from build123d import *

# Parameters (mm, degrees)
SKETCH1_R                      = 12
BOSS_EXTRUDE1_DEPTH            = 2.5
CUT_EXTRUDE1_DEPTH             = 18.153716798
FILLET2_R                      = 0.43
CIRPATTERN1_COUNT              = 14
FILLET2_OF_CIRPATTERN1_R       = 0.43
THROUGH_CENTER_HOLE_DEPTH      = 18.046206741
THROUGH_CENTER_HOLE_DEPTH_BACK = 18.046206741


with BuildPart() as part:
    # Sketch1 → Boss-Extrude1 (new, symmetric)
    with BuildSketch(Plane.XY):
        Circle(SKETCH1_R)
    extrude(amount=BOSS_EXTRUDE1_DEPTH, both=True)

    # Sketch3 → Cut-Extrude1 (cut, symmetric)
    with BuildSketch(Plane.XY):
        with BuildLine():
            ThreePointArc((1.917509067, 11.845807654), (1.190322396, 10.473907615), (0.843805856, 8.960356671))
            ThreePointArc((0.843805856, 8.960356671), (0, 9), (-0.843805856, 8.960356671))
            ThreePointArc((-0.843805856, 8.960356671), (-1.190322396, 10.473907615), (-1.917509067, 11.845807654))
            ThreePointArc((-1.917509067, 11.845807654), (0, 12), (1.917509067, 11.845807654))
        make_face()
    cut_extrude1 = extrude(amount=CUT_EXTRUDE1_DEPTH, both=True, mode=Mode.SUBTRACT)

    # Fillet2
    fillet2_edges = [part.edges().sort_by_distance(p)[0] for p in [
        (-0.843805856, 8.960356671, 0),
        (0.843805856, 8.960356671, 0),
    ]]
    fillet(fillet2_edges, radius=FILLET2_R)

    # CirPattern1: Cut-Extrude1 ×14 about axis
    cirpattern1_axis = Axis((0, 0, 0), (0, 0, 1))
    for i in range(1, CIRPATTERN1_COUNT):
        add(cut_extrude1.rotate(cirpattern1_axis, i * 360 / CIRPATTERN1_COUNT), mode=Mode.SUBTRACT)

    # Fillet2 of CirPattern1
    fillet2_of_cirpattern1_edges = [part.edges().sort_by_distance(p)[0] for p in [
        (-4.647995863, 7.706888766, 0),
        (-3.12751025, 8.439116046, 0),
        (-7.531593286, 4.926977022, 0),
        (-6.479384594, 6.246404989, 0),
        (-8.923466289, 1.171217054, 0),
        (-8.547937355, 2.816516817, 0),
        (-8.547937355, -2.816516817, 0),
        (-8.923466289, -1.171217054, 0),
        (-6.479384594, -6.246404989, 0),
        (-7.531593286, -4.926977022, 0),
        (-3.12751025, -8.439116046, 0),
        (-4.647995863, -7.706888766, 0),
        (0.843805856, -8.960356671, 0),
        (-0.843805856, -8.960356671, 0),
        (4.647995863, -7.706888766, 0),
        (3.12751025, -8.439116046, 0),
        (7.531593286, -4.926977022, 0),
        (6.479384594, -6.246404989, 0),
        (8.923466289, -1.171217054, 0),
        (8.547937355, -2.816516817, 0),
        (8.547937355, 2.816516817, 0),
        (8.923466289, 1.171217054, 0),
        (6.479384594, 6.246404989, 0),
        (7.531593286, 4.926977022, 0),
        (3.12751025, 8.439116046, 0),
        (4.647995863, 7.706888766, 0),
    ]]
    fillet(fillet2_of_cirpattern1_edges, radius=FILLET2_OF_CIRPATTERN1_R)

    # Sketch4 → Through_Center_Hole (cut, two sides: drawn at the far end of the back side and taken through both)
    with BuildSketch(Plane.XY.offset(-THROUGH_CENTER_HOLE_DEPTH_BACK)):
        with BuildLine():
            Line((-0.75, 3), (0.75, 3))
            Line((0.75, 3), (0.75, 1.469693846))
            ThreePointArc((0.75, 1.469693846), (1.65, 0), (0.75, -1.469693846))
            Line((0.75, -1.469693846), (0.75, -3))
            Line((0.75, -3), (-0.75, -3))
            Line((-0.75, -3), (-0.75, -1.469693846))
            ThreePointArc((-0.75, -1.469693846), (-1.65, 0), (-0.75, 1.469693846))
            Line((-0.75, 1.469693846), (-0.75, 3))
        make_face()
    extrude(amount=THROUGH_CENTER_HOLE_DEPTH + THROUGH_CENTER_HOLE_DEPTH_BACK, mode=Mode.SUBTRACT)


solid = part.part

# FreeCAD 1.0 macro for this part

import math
import FreeCAD as App
import Part
import Sketcher
from FreeCAD import Vector


def edges_at(feature, points):
    """Names of the edges that pass closest to the given points."""
    edges = feature.Shape.Edges
    near = lambda p: min(range(len(edges)), key=lambda i: edges[i].distToShape(Part.Vertex(*p))[0])
    return sorted({f"Edge{near(p) + 1}" for p in points})

doc = App.newDocument("Part")
body = doc.addObject("PartDesign::Body", "Body")

sketch1 = doc.addObject("Sketcher::SketchObject", "Sketch")
body.addObject(sketch1)
sketch1.AttachmentSupport = (doc.XY_Plane, [""])
sketch1.MapMode = "FlatFace"
sketch1.addGeometry(Part.Circle(Vector(0, 0, 0), Vector(0, 0, 1), 12), False)
sketch1.addConstraint([
    Sketcher.Constraint("Coincident", 0, 3, -1, 1),
    Sketcher.Constraint("Diameter", 0, 24.0),
])
pad1 = doc.addObject("PartDesign::Pad", "Pad")
body.addObject(pad1)
pad1.Profile = sketch1
pad1.Length = 5
pad1.Midplane = True

sketch2 = doc.addObject("Sketcher::SketchObject", "Sketch001")
body.addObject(sketch2)
sketch2.AttachmentSupport = (doc.XY_Plane, [""])
sketch2.MapMode = "FlatFace"
sketch2.addGeometry([
    Part.ArcOfCircle(Part.Circle(Vector(6.753365, 8.403847, 0), Vector(0, 0, 1), 5.935705), math.radians(144.55833), math.radians(174.620264)),
    Part.ArcOfCircle(Part.Circle(Vector(0, 0, 0), Vector(0, 0, 1), 12), math.radians(80.805152), math.radians(99.194848)),
    Part.ArcOfCircle(Part.Circle(Vector(-6.753365, 8.403847, 0), Vector(0, 0, 1), 5.935705), math.radians(5.379736), math.radians(35.44167)),
    Part.ArcOfCircle(Part.Circle(Vector(0, 0, 0), Vector(0, 0, 1), 9), math.radians(84.620264), math.radians(95.379736)),
], False)
sketch2.addConstraint([
    Sketcher.Constraint("Coincident", 0, 1, 1, 1),
    Sketcher.Constraint("Coincident", 1, 2, 2, 2),
    Sketcher.Constraint("Coincident", 2, 1, 3, 2),
    Sketcher.Constraint("Coincident", 3, 1, 0, 2),
    Sketcher.Constraint("Coincident", 1, 3, -1, 1),
    Sketcher.Constraint("Coincident", 3, 3, -1, 1),
    Sketcher.Constraint("Equal", 0, 2),
    Sketcher.Constraint("Symmetric", 0, 3, 2, 3, -2),
    Sketcher.Constraint("Radius", 1, 12.0),
    Sketcher.Constraint("Radius", 3, 9.0),
    Sketcher.Constraint("Radius", 0, 5.935705),
    Sketcher.Constraint("DistanceX", -1, 1, 0, 1, 1.917509),
    Sketcher.Constraint("DistanceX", 2, 3, 0, 3, 13.506731),
])
pocket1 = doc.addObject("PartDesign::Pocket", "Pocket")
body.addObject(pocket1)
pocket1.Profile = sketch2
pocket1.Length = 36.307434
pocket1.Midplane = True
doc.recompute()

fillet = doc.addObject("PartDesign::Fillet", "Fillet")
body.addObject(fillet)
fillet.Base = (pocket1, edges_at(pocket1, [(-0.844, 8.96, 0), (0.844, 8.96, 0)]))
fillet.Radius = 0.43
doc.recompute()

polarpattern = doc.addObject("PartDesign::PolarPattern", "PolarPattern")
body.addObject(polarpattern)
polarpattern.Originals = [pocket1]
polarpattern.Axis = (doc.Z_Axis, [""])
polarpattern.Angle = 360
polarpattern.Occurrences = 14
body.Tip = polarpattern
doc.recompute()

fillet2 = doc.addObject("PartDesign::Fillet", "Fillet001")
body.addObject(fillet2)
fillet2.Base = (polarpattern, edges_at(polarpattern, [
    (-4.648, 7.707, 0),
    (-3.128, 8.439, 0),
    (-7.532, 4.927, 0),
    (-6.479, 6.246, 0),
    (-8.923, 1.171, 0),
    (-8.548, 2.817, 0),
    (-8.548, -2.817, 0),
    (-8.923, -1.171, 0),
    (-6.479, -6.246, 0),
    (-7.532, -4.927, 0),
    (-3.128, -8.439, 0),
    (-4.648, -7.707, 0),
    (0.844, -8.96, 0),
    (-0.844, -8.96, 0),
    (4.648, -7.707, 0),
    (3.128, -8.439, 0),
    (7.532, -4.927, 0),
    (6.479, -6.246, 0),
    (8.923, -1.171, 0),
    (8.548, -2.817, 0),
    (8.548, 2.817, 0),
    (8.923, 1.171, 0),
    (6.479, 6.246, 0),
    (7.532, 4.927, 0),
    (3.128, 8.439, 0),
    (4.648, 7.707, 0),
]))
fillet2.Radius = 0.43

sketch3 = doc.addObject("Sketcher::SketchObject", "Sketch002")
body.addObject(sketch3)
sketch3.AttachmentSupport = (doc.XY_Plane, [""])
sketch3.MapMode = "FlatFace"
sketch3.addGeometry([
    Part.LineSegment(Vector(0.75, 3, 0), Vector(-0.75, 3, 0)),
    Part.LineSegment(Vector(-0.75, 3, 0), Vector(-0.75, 1.469694, 0)),
    Part.ArcOfCircle(Part.Circle(Vector(0, 0, 0), Vector(0, 0, 1), 1.65), math.radians(117.035692), math.radians(242.964308)),
    Part.LineSegment(Vector(-0.75, -1.469694, 0), Vector(-0.75, -3, 0)),
    Part.LineSegment(Vector(-0.75, -3, 0), Vector(0.75, -3, 0)),
    Part.LineSegment(Vector(0.75, -3, 0), Vector(0.75, -1.469694, 0)),
    Part.ArcOfCircle(Part.Circle(Vector(0, 0, 0), Vector(0, 0, 1), 1.65), math.radians(-62.964308), math.radians(62.964308)),
    Part.LineSegment(Vector(0.75, 1.469694, 0), Vector(0.75, 3, 0)),
], False)
sketch3.addConstraint([
    Sketcher.Constraint("Coincident", 0, 2, 1, 1),
    Sketcher.Constraint("Coincident", 1, 2, 2, 1),
    Sketcher.Constraint("Coincident", 2, 2, 3, 1),
    Sketcher.Constraint("Coincident", 3, 2, 4, 1),
    Sketcher.Constraint("Coincident", 4, 2, 5, 1),
    Sketcher.Constraint("Coincident", 5, 2, 6, 1),
    Sketcher.Constraint("Coincident", 6, 2, 7, 1),
    Sketcher.Constraint("Coincident", 7, 2, 0, 1),
    Sketcher.Constraint("Horizontal", 0),
    Sketcher.Constraint("Vertical", 1),
    Sketcher.Constraint("Vertical", 3),
    Sketcher.Constraint("Horizontal", 4),
    Sketcher.Constraint("Vertical", 5),
    Sketcher.Constraint("Vertical", 7),
    Sketcher.Constraint("Coincident", 2, 3, -1, 1),
    Sketcher.Constraint("Coincident", 6, 3, -1, 1),
    Sketcher.Constraint("Equal", 2, 6),
    Sketcher.Constraint("Symmetric", 0, 2, 4, 2, -1, 1),
    Sketcher.Constraint("Horizontal", 2, 2, 5, 2),
    Sketcher.Constraint("Horizontal", 1, 2, 6, 2),
    Sketcher.Constraint("Radius", 2, 1.65),
    Sketcher.Constraint("DistanceX", 0, 2, 0, 1, 1.5),
    Sketcher.Constraint("DistanceY", -1, 1, 0, 2, 3.0),
])
pocket2 = doc.addObject("PartDesign::Pocket", "Pocket001")
body.addObject(pocket2)
pocket2.Profile = sketch3
pocket2.Type = "ThroughAll"
pocket2.Midplane = True

doc.recompute()
